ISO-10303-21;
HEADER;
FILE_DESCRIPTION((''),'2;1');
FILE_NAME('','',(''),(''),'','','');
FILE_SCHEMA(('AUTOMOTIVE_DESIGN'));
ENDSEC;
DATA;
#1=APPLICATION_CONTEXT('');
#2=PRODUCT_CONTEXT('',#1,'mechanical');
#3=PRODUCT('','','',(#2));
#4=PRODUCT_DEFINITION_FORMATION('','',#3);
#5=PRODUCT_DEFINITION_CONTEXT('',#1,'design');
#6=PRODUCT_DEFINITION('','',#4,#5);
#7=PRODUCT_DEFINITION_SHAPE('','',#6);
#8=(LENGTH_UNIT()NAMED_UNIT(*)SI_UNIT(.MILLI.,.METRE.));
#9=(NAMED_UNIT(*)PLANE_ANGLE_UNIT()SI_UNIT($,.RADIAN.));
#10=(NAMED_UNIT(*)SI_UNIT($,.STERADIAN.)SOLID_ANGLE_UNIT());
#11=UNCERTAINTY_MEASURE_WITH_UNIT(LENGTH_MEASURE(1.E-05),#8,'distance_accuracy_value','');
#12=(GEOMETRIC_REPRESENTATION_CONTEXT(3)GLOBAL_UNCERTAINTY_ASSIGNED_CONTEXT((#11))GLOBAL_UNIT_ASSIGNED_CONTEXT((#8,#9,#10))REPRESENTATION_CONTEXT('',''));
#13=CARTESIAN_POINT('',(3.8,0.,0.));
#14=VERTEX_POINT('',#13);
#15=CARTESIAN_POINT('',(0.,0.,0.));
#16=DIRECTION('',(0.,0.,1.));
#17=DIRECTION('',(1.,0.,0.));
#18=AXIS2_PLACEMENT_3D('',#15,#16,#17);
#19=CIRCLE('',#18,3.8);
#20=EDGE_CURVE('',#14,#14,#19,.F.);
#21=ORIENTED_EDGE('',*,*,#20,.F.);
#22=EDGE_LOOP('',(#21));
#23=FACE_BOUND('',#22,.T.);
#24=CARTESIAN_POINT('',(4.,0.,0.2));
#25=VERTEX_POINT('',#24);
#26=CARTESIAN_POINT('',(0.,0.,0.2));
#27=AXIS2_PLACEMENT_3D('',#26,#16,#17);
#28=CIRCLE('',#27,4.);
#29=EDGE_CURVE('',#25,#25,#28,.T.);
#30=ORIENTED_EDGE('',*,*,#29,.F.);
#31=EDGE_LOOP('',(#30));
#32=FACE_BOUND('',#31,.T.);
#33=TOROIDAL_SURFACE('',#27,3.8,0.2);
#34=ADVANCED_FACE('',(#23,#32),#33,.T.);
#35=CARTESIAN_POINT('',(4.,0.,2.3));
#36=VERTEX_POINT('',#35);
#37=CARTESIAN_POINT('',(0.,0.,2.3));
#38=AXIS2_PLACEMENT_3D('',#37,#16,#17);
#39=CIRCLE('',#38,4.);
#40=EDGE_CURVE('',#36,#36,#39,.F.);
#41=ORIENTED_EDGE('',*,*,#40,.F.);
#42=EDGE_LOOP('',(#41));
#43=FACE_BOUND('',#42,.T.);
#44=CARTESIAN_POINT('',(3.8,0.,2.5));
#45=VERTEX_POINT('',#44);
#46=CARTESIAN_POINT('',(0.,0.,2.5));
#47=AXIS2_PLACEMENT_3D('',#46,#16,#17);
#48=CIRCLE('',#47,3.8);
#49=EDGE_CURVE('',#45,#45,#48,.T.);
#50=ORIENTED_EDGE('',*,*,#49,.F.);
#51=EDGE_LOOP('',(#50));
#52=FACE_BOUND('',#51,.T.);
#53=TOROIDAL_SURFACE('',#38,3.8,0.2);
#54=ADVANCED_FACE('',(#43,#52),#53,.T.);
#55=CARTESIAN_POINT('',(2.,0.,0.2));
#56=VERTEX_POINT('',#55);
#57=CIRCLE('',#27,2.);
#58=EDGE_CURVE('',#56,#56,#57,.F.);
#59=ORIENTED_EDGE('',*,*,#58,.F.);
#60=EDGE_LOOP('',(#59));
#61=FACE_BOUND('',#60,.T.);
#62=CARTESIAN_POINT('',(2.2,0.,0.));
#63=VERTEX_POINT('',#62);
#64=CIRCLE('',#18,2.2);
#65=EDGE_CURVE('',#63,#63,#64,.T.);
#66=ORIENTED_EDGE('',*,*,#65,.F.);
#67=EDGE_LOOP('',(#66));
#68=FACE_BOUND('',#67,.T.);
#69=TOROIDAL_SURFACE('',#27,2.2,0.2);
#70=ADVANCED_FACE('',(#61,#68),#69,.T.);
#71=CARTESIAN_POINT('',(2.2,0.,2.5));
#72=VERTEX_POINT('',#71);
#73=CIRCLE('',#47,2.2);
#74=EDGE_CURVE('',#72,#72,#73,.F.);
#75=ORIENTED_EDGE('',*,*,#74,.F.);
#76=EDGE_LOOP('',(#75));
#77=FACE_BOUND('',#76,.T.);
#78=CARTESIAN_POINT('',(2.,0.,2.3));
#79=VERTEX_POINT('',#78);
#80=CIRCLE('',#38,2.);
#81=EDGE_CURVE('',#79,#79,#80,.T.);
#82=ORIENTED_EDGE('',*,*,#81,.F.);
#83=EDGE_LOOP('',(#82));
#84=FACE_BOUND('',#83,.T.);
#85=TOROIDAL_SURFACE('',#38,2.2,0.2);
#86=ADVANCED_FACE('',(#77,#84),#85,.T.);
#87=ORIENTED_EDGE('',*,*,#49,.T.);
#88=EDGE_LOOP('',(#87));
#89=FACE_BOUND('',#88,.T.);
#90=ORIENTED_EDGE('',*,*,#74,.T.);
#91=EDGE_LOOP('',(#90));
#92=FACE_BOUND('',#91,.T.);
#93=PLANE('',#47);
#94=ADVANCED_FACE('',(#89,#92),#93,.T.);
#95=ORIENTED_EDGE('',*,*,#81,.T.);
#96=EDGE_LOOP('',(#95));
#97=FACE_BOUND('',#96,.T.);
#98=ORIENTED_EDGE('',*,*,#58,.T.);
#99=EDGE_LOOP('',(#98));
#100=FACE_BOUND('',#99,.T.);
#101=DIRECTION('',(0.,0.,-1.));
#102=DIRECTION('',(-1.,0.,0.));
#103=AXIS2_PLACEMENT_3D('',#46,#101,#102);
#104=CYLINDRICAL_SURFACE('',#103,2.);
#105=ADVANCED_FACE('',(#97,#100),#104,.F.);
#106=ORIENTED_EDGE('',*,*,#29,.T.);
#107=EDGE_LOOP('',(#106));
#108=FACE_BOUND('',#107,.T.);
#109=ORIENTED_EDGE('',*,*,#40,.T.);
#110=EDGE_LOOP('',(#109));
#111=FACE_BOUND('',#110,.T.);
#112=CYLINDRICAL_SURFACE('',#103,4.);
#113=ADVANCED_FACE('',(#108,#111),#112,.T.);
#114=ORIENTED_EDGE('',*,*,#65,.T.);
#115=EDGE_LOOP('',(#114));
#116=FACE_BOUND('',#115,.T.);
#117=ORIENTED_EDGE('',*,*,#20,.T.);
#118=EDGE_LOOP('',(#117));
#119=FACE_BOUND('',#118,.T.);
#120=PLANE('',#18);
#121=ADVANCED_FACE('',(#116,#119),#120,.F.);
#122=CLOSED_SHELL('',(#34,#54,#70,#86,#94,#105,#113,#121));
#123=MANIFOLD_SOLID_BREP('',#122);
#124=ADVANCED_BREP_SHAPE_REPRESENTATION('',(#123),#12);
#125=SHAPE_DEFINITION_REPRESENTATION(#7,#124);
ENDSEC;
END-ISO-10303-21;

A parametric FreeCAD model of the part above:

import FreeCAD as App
import Part
import Sketcher
Q = App.Units.Quantity


def edges_at(feature, points):
    """Names of the edges that pass closest to the given points."""
    edges = feature.Shape.Edges
    near = lambda p: min(range(len(edges)), key=lambda i: edges[i].distToShape(Part.Vertex(*p))[0])
    return sorted({f"Edge{near(p) + 1}" for p in points})

doc = App.newDocument("Part")
body = doc.addObject("PartDesign::Body", "Body")

# Sketch on XY plane
sketch1 = body.newObject("Sketcher::SketchObject", "Sketch")
sketch1.AttachmentSupport = (doc.getObject("XY_Plane"), [""])
sketch1.MapMode = "FlatFace"
sketch1.addGeometry([
    Part.Circle(App.Vector(0, 0, 0), App.Vector(0, 0, 1), 4),
    Part.Circle(App.Vector(0, 0, 0), App.Vector(0, 0, 1), 2),
], False)
sketch1.addConstraint([
    Sketcher.Constraint("Coincident", 0, 3, -1, 1),
    Sketcher.Constraint("Coincident", 1, 3, -1, 1),
    Sketcher.Constraint("Diameter", 0, Q("8 mm")),
    Sketcher.Constraint("Diameter", 1, Q("4 mm")),
])
pad1 = body.newObject("PartDesign::Pad", "Pad")
pad1.Profile = sketch1
pad1.Length = 2.5
doc.recompute()

fillet = body.newObject("PartDesign::Fillet", "Fillet")
fillet.Base = (pad1, edges_at(pad1, [
    (-4, 0, 0),
    (-4, 0, 2.5),
    (-2, 0, 0),
    (-2, 0, 2.5),
]))
fillet.Radius = 0.2

doc.recompute()
